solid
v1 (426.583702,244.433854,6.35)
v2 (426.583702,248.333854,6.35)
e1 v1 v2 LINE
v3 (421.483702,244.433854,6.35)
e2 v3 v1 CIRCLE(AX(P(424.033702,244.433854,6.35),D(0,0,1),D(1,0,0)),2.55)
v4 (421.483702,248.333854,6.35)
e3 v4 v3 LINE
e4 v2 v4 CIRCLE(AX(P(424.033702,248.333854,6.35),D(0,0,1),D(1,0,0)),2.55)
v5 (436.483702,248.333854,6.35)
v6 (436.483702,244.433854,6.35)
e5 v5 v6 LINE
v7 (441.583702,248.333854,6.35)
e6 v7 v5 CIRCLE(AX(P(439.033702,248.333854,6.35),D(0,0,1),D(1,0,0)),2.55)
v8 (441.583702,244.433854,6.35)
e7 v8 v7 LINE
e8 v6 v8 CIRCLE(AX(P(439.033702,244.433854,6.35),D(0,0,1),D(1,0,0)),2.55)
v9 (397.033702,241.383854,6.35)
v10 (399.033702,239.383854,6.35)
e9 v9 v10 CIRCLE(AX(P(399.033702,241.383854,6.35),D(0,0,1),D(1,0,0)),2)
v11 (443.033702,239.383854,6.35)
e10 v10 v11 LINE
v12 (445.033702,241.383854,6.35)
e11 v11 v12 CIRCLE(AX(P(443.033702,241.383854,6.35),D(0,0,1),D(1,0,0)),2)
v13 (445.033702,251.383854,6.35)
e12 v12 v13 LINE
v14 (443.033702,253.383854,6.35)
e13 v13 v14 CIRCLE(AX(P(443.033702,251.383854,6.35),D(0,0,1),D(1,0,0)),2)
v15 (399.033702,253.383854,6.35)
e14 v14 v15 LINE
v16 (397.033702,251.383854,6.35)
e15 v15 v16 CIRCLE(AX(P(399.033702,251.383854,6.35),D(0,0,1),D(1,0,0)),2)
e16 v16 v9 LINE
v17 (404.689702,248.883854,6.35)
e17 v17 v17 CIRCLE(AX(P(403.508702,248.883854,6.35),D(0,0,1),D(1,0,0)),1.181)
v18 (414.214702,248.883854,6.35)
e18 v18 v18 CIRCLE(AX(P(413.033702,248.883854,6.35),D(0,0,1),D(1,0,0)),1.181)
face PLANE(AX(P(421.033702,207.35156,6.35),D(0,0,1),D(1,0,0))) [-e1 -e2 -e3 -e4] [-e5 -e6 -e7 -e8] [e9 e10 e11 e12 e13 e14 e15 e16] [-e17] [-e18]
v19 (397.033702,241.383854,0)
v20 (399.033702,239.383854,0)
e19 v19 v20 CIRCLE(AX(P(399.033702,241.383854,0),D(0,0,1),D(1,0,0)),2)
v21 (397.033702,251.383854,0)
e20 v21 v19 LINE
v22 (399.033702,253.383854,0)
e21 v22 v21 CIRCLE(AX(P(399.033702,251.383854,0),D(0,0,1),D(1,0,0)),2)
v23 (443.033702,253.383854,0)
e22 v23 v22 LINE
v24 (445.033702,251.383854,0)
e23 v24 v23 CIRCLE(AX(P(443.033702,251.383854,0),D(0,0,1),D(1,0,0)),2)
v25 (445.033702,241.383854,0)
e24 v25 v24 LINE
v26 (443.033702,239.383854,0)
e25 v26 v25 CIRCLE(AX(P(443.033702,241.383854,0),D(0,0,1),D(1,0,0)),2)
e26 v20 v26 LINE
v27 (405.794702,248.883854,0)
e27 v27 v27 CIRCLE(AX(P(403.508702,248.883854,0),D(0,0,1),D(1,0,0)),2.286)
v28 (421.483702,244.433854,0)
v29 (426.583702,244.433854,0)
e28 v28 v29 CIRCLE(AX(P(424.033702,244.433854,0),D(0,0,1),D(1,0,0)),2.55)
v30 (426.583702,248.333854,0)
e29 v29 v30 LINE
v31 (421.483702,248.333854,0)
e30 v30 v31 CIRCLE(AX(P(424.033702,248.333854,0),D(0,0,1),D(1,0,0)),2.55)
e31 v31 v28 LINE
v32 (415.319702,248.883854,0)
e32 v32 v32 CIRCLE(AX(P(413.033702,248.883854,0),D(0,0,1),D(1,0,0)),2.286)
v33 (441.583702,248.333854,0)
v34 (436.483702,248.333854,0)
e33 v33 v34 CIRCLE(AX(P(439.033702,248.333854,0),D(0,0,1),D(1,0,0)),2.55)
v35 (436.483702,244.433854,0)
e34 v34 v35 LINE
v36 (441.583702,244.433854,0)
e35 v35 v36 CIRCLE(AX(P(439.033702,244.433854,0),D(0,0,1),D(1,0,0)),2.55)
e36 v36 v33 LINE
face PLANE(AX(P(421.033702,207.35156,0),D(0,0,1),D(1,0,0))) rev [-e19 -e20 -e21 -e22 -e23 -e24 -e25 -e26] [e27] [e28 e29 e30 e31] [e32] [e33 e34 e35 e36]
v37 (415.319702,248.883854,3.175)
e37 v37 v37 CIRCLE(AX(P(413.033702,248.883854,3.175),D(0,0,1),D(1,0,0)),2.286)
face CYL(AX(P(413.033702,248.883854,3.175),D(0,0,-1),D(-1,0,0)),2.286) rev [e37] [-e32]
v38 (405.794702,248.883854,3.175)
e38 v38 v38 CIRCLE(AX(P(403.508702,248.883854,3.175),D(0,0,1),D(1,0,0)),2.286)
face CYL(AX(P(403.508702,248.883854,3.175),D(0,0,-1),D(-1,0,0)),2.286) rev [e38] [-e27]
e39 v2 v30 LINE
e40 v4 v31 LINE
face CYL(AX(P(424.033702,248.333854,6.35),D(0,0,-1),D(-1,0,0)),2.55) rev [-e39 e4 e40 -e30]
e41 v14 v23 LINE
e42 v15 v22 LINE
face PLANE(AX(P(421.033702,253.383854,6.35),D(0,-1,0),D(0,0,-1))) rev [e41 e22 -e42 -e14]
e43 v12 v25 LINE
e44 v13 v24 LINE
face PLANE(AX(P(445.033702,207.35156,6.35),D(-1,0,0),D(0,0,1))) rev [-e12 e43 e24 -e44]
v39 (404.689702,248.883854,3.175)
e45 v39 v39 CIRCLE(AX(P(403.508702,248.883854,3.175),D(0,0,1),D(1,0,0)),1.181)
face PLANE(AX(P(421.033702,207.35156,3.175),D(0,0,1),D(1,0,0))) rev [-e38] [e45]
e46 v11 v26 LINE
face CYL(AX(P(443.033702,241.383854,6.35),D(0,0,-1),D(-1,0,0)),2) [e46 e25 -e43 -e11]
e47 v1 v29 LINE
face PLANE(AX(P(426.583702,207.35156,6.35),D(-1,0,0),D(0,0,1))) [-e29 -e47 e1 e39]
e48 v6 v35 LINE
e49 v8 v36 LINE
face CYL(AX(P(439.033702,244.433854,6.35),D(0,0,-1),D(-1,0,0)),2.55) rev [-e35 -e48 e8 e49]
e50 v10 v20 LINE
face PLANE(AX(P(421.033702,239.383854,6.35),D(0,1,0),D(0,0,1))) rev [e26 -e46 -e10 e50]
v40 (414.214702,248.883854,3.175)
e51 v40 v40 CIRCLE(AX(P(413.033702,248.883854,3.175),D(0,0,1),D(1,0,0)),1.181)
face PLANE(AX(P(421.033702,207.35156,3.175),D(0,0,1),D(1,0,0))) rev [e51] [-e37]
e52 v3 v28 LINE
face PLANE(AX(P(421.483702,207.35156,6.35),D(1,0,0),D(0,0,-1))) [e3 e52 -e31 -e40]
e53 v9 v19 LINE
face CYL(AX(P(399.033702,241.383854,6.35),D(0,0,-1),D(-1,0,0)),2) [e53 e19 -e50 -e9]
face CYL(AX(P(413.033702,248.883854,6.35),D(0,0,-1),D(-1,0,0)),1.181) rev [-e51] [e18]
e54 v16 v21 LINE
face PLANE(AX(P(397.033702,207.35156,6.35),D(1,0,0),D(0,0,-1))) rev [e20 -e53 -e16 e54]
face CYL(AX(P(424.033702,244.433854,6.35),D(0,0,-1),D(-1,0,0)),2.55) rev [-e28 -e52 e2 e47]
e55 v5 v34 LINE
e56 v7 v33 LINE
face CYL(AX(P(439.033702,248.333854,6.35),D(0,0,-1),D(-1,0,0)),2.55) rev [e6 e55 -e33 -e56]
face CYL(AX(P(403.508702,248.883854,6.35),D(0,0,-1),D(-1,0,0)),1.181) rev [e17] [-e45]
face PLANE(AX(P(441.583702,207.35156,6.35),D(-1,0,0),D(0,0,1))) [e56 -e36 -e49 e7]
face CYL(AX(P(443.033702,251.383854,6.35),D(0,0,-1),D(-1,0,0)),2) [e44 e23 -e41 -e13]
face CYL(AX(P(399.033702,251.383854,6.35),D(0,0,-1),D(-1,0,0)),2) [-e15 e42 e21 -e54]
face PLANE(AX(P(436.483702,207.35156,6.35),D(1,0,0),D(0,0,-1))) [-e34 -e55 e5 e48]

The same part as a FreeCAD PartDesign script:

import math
import FreeCAD as App
import Part
import Sketcher

V = App.Vector
Q = App.Units.Quantity

doc = App.newDocument("Part")
body = doc.addObject("PartDesign::Body", "Body")

sketch1 = body.newObject("Sketcher::SketchObject", "Sketch")
sketch1.AttachmentSupport = (doc.getObject("XY_Plane"), [""])
sketch1.MapMode = "FlatFace"
sketch1.addGeometry([
    Part.LineSegment(V(399, 239.4, 0), V(443, 239.4, 0)),
    Part.ArcOfCircle(Part.Circle(V(443, 241.4, 0), V(0, 0, 1), 2), math.radians(-90), math.radians(0)),
    Part.LineSegment(V(445, 241.4, 0), V(445, 251.4, 0)),
    Part.ArcOfCircle(Part.Circle(V(443, 251.4, 0), V(0, 0, 1), 2), math.radians(0), math.radians(90)),
    Part.LineSegment(V(443, 253.4, 0), V(399, 253.4, 0)),
    Part.ArcOfCircle(Part.Circle(V(399, 251.4, 0), V(0, 0, 1), 2), math.radians(90), math.radians(180)),
    Part.LineSegment(V(397, 251.4, 0), V(397, 241.4, 0)),
    Part.ArcOfCircle(Part.Circle(V(399, 241.4, 0), V(0, 0, 1), 2), math.radians(180), math.radians(270)),
    Part.ArcOfCircle(Part.Circle(V(424, 244.4, 0), V(0, 0, 1), 2.5), math.radians(180), math.radians(360)),
    Part.LineSegment(V(421.5, 244.4, 0), V(421.5, 248.3, 0)),
    Part.ArcOfCircle(Part.Circle(V(424, 248.3, 0), V(0, 0, 1), 2.5), math.radians(0), math.radians(180)),
    Part.LineSegment(V(426.6, 248.3, 0), V(426.6, 244.4, 0)),
    Part.ArcOfCircle(Part.Circle(V(439, 244.4, 0), V(0, 0, 1), 2.5), math.radians(180), math.radians(360)),
    Part.LineSegment(V(436.5, 244.4, 0), V(436.5, 248.3, 0)),
    Part.ArcOfCircle(Part.Circle(V(439, 248.3, 0), V(0, 0, 1), 2.5), math.radians(0), math.radians(180)),
    Part.LineSegment(V(441.6, 248.3, 0), V(441.6, 244.4, 0)),
    Part.Circle(V(403.5, 248.9, 0), V(0, 0, 1), 1.2),
    Part.Circle(V(413, 248.9, 0), V(0, 0, 1), 1.2),
], False)
sketch1.addConstraint([
    Sketcher.Constraint("Tangent", 0, 2, 1, 1),
    Sketcher.Constraint("Tangent", 1, 2, 2, 1),
    Sketcher.Constraint("Tangent", 2, 2, 3, 1),
    Sketcher.Constraint("Tangent", 3, 2, 4, 1),
    Sketcher.Constraint("Tangent", 4, 2, 5, 1),
    Sketcher.Constraint("Tangent", 5, 2, 6, 1),
    Sketcher.Constraint("Tangent", 6, 2, 7, 1),
    Sketcher.Constraint("Tangent", 7, 2, 0, 1),
    Sketcher.Constraint("Tangent", 8, 1, 9, 1),
    Sketcher.Constraint("Tangent", 9, 2, 10, 2),
    Sketcher.Constraint("Tangent", 10, 1, 11, 1),
    Sketcher.Constraint("Tangent", 11, 2, 8, 2),
    Sketcher.Constraint("Tangent", 12, 1, 13, 1),
    Sketcher.Constraint("Tangent", 13, 2, 14, 2),
    Sketcher.Constraint("Tangent", 14, 1, 15, 1),
    Sketcher.Constraint("Tangent", 15, 2, 12, 2),
    Sketcher.Constraint("Horizontal", 0),
    Sketcher.Constraint("Vertical", 2),
    Sketcher.Constraint("Horizontal", 4),
    Sketcher.Constraint("Vertical", 6),
    Sketcher.Constraint("Vertical", 9),
    Sketcher.Constraint("Vertical", 11),
    Sketcher.Constraint("Vertical", 13),
    Sketcher.Constraint("Vertical", 15),
    Sketcher.Constraint("Equal", 1, 3),
    Sketcher.Constraint("Equal", 3, 5),
    Sketcher.Constraint("Equal", 5, 7),
    Sketcher.Constraint("Equal", 10, 12),
    Sketcher.Constraint("Equal", 16, 17),
    Sketcher.Constraint("Horizontal", 8, 3, 12, 3),
    Sketcher.Constraint("Horizontal", 10, 3, 14, 3),
    Sketcher.Constraint("Horizontal", 16, 3, 17, 3),
    Sketcher.Constraint("Radius", 1, Q("2 mm")),
    Sketcher.Constraint("DistanceX", 0, 1, 0, 2, Q("44 mm")),
    Sketcher.Constraint("DistanceY", 2, 1, 2, 2, Q("10 mm")),
    Sketcher.Constraint("Radius", 8, Q("2.55 mm")),
    Sketcher.Constraint("Diameter", 16, Q("2.362 mm")),
    Sketcher.Constraint("DistanceY", 9, 1, 9, 2, Q("3.9 mm")),
    Sketcher.Constraint("DistanceX", 8, 3, 1, 3, Q("19 mm")),
    Sketcher.Constraint("DistanceX", 12, 3, 1, 3, Q("4 mm")),
    Sketcher.Constraint("DistanceX", 17, 3, 10, 3, Q("11 mm")),
    Sketcher.Constraint("DistanceY", 16, 3, 5, 3, Q("2.5 mm")),
    Sketcher.Constraint("DistanceY", 1, 3, 8, 3, Q("3.05 mm")),
    Sketcher.Constraint("DistanceX", 5, 3, 16, 3, Q("4.475 mm")),
    Sketcher.Constraint("DistanceX", -1, 1, 1, 3, Q("443.033702 mm")),
    Sketcher.Constraint("DistanceY", -1, 1, 1, 3, Q("241.383854 mm")),
])
pad1 = body.newObject("PartDesign::Pad", "Pad")
pad1.Profile = sketch1
pad1.Length = 6.35

sketch2 = body.newObject("Sketcher::SketchObject", "Sketch001")
sketch2.AttachmentSupport = (doc.getObject("XY_Plane"), [""])
sketch2.MapMode = "FlatFace"
sketch2.addGeometry([
    Part.Circle(V(403.5, 248.9, 0), V(0, 0, 1), 2.3),
    Part.Circle(V(403.5, 248.9, 0), V(0, 0, 1), 1.2),
    Part.Circle(V(413, 248.9, 0), V(0, 0, 1), 2.3),
    Part.Circle(V(413, 248.9, 0), V(0, 0, 1), 1.2),
], False)
sketch2.addConstraint([
    Sketcher.Constraint("Coincident", 1, 3, 0, 3),
    Sketcher.Constraint("Coincident", 3, 3, 2, 3),
    Sketcher.Constraint("Equal", 0, 2),
    Sketcher.Constraint("Equal", 1, 3),
    Sketcher.Constraint("Horizontal", 1, 3, 2, 3),
    Sketcher.Constraint("Diameter", 0, Q("4.572 mm")),
    Sketcher.Constraint("Diameter", 1, Q("2.362 mm")),
    Sketcher.Constraint("DistanceX", 0, 3, 2, 3, Q("9.525 mm")),
    Sketcher.Constraint("DistanceX", -1, 1, 0, 3, Q("403.508702 mm")),
    Sketcher.Constraint("DistanceY", -1, 1, 0, 3, Q("248.883854 mm")),
])
pocket1 = body.newObject("PartDesign::Pocket", "Pocket")
pocket1.Profile = sketch2
pocket1.Length = 3.175
pocket1.Reversed = True

doc.recompute()
